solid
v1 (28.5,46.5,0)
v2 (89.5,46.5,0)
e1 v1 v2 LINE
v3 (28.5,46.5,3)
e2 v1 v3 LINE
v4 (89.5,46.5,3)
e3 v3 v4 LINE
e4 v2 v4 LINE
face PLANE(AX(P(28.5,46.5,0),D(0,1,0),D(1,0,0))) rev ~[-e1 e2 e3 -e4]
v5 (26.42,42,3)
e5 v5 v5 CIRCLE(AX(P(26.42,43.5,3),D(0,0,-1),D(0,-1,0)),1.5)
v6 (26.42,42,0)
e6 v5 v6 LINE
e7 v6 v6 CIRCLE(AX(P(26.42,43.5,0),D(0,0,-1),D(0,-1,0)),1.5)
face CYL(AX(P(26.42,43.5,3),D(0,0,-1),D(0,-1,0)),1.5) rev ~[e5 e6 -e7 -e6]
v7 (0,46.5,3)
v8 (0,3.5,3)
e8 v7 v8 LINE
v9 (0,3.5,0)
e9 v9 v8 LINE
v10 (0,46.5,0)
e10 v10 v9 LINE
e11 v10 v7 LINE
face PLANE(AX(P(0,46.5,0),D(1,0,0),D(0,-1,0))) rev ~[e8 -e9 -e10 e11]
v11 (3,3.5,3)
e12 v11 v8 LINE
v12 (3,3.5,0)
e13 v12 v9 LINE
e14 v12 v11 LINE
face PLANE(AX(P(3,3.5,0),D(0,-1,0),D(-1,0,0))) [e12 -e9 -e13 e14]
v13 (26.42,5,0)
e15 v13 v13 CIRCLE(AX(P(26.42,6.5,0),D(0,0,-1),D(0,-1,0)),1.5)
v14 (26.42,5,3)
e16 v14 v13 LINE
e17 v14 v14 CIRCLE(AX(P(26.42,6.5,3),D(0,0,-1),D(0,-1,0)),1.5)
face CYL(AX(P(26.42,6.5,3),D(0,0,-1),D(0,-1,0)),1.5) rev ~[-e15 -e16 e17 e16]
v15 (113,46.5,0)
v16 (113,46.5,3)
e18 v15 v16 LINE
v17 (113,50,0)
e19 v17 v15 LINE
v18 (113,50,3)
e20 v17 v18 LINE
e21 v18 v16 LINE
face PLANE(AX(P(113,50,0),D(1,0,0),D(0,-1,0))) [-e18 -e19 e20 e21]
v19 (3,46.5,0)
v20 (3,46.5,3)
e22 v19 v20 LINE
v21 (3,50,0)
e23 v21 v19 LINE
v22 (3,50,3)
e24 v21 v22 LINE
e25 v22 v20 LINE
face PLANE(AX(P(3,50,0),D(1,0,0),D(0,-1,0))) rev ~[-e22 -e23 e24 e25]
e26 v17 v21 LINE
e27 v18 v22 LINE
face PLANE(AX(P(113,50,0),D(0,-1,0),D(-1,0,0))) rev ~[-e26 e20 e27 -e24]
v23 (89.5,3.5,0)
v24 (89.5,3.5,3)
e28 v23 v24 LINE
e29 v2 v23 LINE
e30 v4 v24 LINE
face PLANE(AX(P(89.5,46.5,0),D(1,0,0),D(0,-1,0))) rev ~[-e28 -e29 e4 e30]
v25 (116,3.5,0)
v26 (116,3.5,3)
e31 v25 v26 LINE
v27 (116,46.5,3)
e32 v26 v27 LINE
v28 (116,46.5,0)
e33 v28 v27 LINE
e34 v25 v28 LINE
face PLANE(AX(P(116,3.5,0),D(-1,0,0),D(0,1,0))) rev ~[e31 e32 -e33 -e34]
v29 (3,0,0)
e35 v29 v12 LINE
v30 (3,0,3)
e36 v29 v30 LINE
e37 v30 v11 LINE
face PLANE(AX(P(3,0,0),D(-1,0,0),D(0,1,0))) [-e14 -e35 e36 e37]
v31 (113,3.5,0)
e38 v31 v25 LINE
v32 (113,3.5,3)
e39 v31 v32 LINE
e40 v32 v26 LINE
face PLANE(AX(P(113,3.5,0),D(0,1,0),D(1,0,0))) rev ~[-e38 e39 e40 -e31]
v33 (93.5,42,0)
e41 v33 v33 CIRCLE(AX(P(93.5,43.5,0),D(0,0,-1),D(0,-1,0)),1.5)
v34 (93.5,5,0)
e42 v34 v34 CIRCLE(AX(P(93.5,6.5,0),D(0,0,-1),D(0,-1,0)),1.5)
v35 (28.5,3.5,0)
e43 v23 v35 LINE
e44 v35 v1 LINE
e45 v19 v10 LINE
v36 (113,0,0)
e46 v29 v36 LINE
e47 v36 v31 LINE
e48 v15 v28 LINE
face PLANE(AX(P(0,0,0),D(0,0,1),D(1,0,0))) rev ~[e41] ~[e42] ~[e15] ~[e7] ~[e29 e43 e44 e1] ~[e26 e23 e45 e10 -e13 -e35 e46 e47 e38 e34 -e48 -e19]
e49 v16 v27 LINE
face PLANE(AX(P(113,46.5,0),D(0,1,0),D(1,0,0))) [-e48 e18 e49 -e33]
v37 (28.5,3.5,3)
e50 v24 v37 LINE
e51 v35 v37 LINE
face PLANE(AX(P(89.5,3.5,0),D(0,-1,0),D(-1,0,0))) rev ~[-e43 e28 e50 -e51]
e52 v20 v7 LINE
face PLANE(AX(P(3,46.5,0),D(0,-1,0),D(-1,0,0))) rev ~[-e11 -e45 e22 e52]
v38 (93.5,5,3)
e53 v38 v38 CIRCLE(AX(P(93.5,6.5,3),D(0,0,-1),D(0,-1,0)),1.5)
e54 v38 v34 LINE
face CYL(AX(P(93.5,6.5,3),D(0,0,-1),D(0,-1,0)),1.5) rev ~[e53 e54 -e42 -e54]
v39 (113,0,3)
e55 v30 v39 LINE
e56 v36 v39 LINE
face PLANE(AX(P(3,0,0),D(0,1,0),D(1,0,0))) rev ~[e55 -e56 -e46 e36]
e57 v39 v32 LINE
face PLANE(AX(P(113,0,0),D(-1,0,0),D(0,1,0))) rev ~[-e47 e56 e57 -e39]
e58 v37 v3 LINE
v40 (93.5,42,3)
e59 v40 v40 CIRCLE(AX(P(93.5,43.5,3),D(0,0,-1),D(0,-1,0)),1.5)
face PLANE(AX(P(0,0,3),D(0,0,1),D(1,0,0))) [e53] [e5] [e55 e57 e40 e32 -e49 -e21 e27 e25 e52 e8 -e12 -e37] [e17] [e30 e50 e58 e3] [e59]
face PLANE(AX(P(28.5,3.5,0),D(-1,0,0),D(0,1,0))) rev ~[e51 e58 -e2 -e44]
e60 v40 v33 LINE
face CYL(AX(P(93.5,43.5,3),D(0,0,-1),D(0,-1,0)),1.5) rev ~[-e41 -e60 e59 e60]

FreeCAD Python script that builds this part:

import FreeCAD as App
import Part
import Sketcher

V = App.Vector


def add_polygon(sketch, points):
    """Adds a closed chain of lines whose ends are joined by coincident constraints."""
    first, n = sketch.GeometryCount, len(points)
    for a, b in zip(points, points[1:] + points[:1]):
        sketch.addGeometry(Part.LineSegment(App.Vector(*a, 0), App.Vector(*b, 0)), False)
    for i in range(n):
        sketch.addConstraint(Sketcher.Constraint("Coincident", first + i, 2, first + (i + 1) % n, 1))

doc = App.newDocument("Part")
params = doc.addObject("Spreadsheet::Sheet", "Params")
for row, (alias, value) in enumerate([
    ("sketch1_width", "3 mm"),
    ("sketch1_width2", "61 mm"),
    ("sketch1_height", "43 mm"),
    ("pad1_length", "3 mm"),
    ("sketch2_diameter", "3 mm"),
    ("hole_diameter", "3 mm"),
], start=1):
    params.set(f"A{row}", alias)
    params.set(f"B{row}", "=" + value)
    params.setAlias(f"B{row}", alias)

body = doc.addObject("PartDesign::Body", "Body")

# Sketch on XY plane
sketch1 = doc.addObject("Sketcher::SketchObject", "Sketch")
body.addObject(sketch1)
sketch1.AttachmentSupport = (doc.XY_Plane, [""])
sketch1.MapMode = "FlatFace"
add_polygon(sketch1, [(3, 3.5), (3, 0), (113, 0), (113, 3.5), (116, 3.5), (116, 46.5), (113, 46.5), (113, 50), (3, 50), (3, 46.5), (0, 46.5), (0, 3.5)])  # lines 0-11
add_polygon(sketch1, [(28.5, 3.5), (28.5, 46.5), (89.5, 46.5), (89.5, 3.5)])  # lines 12-15
sketch1.addConstraint(Sketcher.Constraint("Vertical", 0))
sketch1.addConstraint(Sketcher.Constraint("Horizontal", 1))
sketch1.addConstraint(Sketcher.Constraint("Vertical", 2))
sketch1.addConstraint(Sketcher.Constraint("Horizontal", 3))
sketch1.addConstraint(Sketcher.Constraint("Vertical", 4))
sketch1.addConstraint(Sketcher.Constraint("Horizontal", 5))
sketch1.addConstraint(Sketcher.Constraint("Vertical", 6))
sketch1.addConstraint(Sketcher.Constraint("Horizontal", 7))
sketch1.addConstraint(Sketcher.Constraint("Vertical", 8))
sketch1.addConstraint(Sketcher.Constraint("Horizontal", 9))
sketch1.addConstraint(Sketcher.Constraint("Vertical", 10))
sketch1.addConstraint(Sketcher.Constraint("Horizontal", 11))
sketch1.addConstraint(Sketcher.Constraint("Vertical", 12))
sketch1.addConstraint(Sketcher.Constraint("Horizontal", 13))
sketch1.addConstraint(Sketcher.Constraint("Vertical", 14))
sketch1.addConstraint(Sketcher.Constraint("Horizontal", 15))
sketch1.addConstraint(Sketcher.Constraint("PointOnObject", 0, 2, -1))
sketch1.addConstraint(Sketcher.Constraint("PointOnObject", 9, 2, -2))
sketch1.addConstraint(Sketcher.Constraint("Horizontal", 5, 2, 8, 2))
sketch1.addConstraint(Sketcher.Constraint("Horizontal", 3, 2, 10, 2))
sketch1.addConstraint(Sketcher.Constraint("Horizontal", 9, 2, 12, 2))
sketch1.addConstraint(Sketcher.Constraint("Horizontal", 11, 2, 14, 2))
sketch1.addConstraint(Sketcher.Constraint("Vertical", 2, 2, 5, 2))
sketch1.addConstraint(Sketcher.Constraint("Vertical", 0, 2, 7, 2))
sketch1.addConstraint(Sketcher.Constraint("Equal", 5, 9))
sketch1.addConstraint(Sketcher.Constraint("Equal", 2, 6))
sketch1.addConstraint(Sketcher.Constraint("DistanceX", 3, 1, 3, 2, 3.0))
sketch1.addConstraint(Sketcher.Constraint("DistanceX", 13, 1, 13, 2, 61.0))
sketch1.addConstraint(Sketcher.Constraint("DistanceX", -1, 1, 3, 2, 116.0))
sketch1.addConstraint(Sketcher.Constraint("DistanceY", -1, 1, 6, 2, 50.0))
sketch1.addConstraint(Sketcher.Constraint("DistanceY", 4, 1, 4, 2, 43.0))
sketch1.addConstraint(Sketcher.Constraint("DistanceX", -1, 1, 12, 2, 28.5))
sketch1.setExpression("Constraints[42]", "Params.sketch1_width")
sketch1.setExpression("Constraints[43]", "Params.sketch1_width2")
sketch1.setExpression("Constraints[46]", "Params.sketch1_height")
pad1 = doc.addObject("PartDesign::Pad", "Pad")
body.addObject(pad1)
pad1.Profile = sketch1
pad1.setExpression("Length", "Params.pad1_length")

# Sketch on XY plane
sketch2 = doc.addObject("Sketcher::SketchObject", "Sketch001")
body.addObject(sketch2)
sketch2.AttachmentSupport = (doc.XY_Plane, [""])
sketch2.MapMode = "FlatFace"
sketch2.AttachmentOffset = App.Placement(V(0, 0, 3), App.Rotation())
sketch2.addGeometry(Part.Circle(V(26.4, 43.5, 0), V(0, 0, 1), 1.5), False)
sketch2.addGeometry(Part.Circle(V(26.4, 6.5, 0), V(0, 0, 1), 1.5), False)
sketch2.addGeometry(Part.Circle(V(93.5, 6.5, 0), V(0, 0, 1), 1.5), False)
sketch2.addGeometry(Part.Circle(V(93.5, 43.5, 0), V(0, 0, 1), 1.5), False)
sketch2.addConstraint(Sketcher.Constraint("Equal", 0, 1))
sketch2.addConstraint(Sketcher.Constraint("Equal", 1, 2))
sketch2.addConstraint(Sketcher.Constraint("Equal", 2, 3))
sketch2.addConstraint(Sketcher.Constraint("Horizontal", 1, 3, 2, 3))
sketch2.addConstraint(Sketcher.Constraint("Horizontal", 0, 3, 3, 3))
sketch2.addConstraint(Sketcher.Constraint("Vertical", 0, 3, 1, 3))
sketch2.addConstraint(Sketcher.Constraint("Vertical", 2, 3, 3, 3))
sketch2.addConstraint(Sketcher.Constraint("Diameter", 0, 3.0))
sketch2.addConstraint(Sketcher.Constraint("DistanceY", 1, 3, 0, 3, 37.0))
sketch2.addConstraint(Sketcher.Constraint("DistanceY", -1, 1, 0, 3, 43.5))
sketch2.addConstraint(Sketcher.Constraint("DistanceX", -1, 1, 2, 3, 93.5))
sketch2.addConstraint(Sketcher.Constraint("DistanceX", -1, 1, 0, 3, 26.42))
sketch2.setExpression("Constraints[7]", "Params.sketch2_diameter")
doc.recompute()
hole = doc.addObject("PartDesign::Hole", "Hole")
body.addObject(hole)
hole.Profile = sketch2
hole.ThreadType = "None"
hole.setExpression("Diameter", "Params.hole_diameter")
hole.DepthType = "ThroughAll"

doc.recompute()
